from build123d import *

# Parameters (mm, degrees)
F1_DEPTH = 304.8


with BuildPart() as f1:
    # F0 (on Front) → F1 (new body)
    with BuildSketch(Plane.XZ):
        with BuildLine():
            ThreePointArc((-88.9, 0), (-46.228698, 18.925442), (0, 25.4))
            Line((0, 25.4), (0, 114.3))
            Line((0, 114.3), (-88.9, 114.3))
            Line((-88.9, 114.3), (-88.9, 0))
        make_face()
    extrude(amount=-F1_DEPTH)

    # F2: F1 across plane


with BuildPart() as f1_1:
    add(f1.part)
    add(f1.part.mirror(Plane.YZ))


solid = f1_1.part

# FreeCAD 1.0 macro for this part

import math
import FreeCAD as App
import Part
import Sketcher
from FreeCAD import Vector
Q = App.Units.Quantity

doc = App.newDocument("Part")
body = doc.addObject("PartDesign::Body", "Body")

# Sketch on XZ plane
sketch1 = body.newObject("Sketcher::SketchObject", "Sketch")
sketch1.AttachmentSupport = (doc.getObject("XZ_Plane"), [""])
sketch1.MapMode = "FlatFace"
sketch1.addGeometry(Part.ArcOfCircle(Part.Circle(Vector(0, -143, 0), Vector(0, 0, 1), 168), math.radians(90), math.radians(122)), False)
sketch1.addGeometry(Part.LineSegment(Vector(0, 25, 0), Vector(0, 114, 0)), False)
sketch1.addGeometry(Part.LineSegment(Vector(0, 114, 0), Vector(-89, 114, 0)), False)
sketch1.addGeometry(Part.LineSegment(Vector(-89, 114, 0), Vector(-89, 0, 0)), False)
sketch1.addConstraint(Sketcher.Constraint("Coincident", 0, 1, 1, 1))
sketch1.addConstraint(Sketcher.Constraint("Coincident", 1, 2, 2, 1))
sketch1.addConstraint(Sketcher.Constraint("Coincident", 2, 2, 3, 1))
sketch1.addConstraint(Sketcher.Constraint("Coincident", 3, 2, 0, 2))
sketch1.addConstraint(Sketcher.Constraint("Vertical", 1))
sketch1.addConstraint(Sketcher.Constraint("Horizontal", 2))
sketch1.addConstraint(Sketcher.Constraint("Vertical", 3))
sketch1.addConstraint(Sketcher.Constraint("PointOnObject", 0, 3, -2))
sketch1.addConstraint(Sketcher.Constraint("PointOnObject", 0, 1, -2))
sketch1.addConstraint(Sketcher.Constraint("PointOnObject", 3, 2, -1))
sketch1.addConstraint(Sketcher.Constraint("Equal", 2, 1))
sketch1.addConstraint(Sketcher.Constraint("DistanceX", 2, 2, 2, 1, Q("3.5 in")))
sketch1.addConstraint(Sketcher.Constraint("DistanceY", 3, 2, 3, 1, Q("4.5 in")))
pad1 = body.newObject("PartDesign::Pad", "Pad")
pad1.Profile = sketch1
pad1.Length = Q("12 in")
pad1.Reversed = True
body2 = doc.addObject("PartDesign::Body", "Body001")
doc.recompute()

body2.BaseFeature = body
doc.recompute()

mirroring = doc.addObject("Part::Mirroring", "Mirroring")
mirroring.Source = body
mirroring.Base = Vector(0, 0, 0)
mirroring.Normal = Vector(1, 0, 0)
body3 = doc.addObject("PartDesign::Body", "Body002")
body3.BaseFeature = mirroring
boolean = body2.newObject("PartDesign::Boolean", "Boolean")
boolean.Type = "Fuse"
boolean.addObjects([body3])
doc.recompute()
mirroring.Visibility = False

doc.recompute()
